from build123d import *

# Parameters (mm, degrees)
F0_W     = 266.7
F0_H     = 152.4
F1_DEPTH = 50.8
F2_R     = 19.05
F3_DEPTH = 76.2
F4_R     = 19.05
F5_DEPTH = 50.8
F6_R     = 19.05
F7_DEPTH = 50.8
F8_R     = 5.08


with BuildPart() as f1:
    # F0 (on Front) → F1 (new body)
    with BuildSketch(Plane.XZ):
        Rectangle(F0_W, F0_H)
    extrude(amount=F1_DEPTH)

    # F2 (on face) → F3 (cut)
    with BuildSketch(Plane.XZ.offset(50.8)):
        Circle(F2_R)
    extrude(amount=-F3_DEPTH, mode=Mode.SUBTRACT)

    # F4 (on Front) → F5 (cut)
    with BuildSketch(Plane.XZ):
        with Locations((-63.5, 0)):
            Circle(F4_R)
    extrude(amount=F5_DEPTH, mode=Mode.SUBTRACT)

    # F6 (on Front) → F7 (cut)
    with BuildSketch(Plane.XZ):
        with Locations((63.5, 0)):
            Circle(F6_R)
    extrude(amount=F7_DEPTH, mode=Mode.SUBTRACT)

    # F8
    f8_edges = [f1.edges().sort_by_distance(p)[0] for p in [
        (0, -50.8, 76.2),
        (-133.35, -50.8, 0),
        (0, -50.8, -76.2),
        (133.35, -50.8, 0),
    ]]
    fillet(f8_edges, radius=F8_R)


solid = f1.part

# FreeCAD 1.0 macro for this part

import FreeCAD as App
import Part
import Sketcher
Q = App.Units.Quantity


def edges_at(feature, points):
    """Names of the edges that pass closest to the given points."""
    edges = feature.Shape.Edges
    near = lambda p: min(range(len(edges)), key=lambda i: edges[i].distToShape(Part.Vertex(*p))[0])
    return sorted({f"Edge{near(p) + 1}" for p in points})


def add_polygon(sketch, points):
    """Adds a closed chain of lines whose ends are joined by coincident constraints."""
    first, n = sketch.GeometryCount, len(points)
    for a, b in zip(points, points[1:] + points[:1]):
        sketch.addGeometry(Part.LineSegment(App.Vector(*a, 0), App.Vector(*b, 0)), False)
    for i in range(n):
        sketch.addConstraint(Sketcher.Constraint("Coincident", first + i, 2, first + (i + 1) % n, 1))

doc = App.newDocument("Part")
body = doc.addObject("PartDesign::Body", "Body")

# Sketch on XZ plane
sketch1 = body.newObject("Sketcher::SketchObject", "Sketch")
sketch1.AttachmentSupport = (doc.getObject("XZ_Plane"), [""])
sketch1.MapMode = "FlatFace"
add_polygon(sketch1, [(-133, 76), (-133, -76), (133, -76), (133, 76)])  # lines 0-3
sketch1.addConstraint([
    Sketcher.Constraint("Vertical", 0),
    Sketcher.Constraint("Horizontal", 1),
    Sketcher.Constraint("Vertical", 2),
    Sketcher.Constraint("Horizontal", 3),
    Sketcher.Constraint("Symmetric", 0, 2, 2, 2, -1, 1),
    Sketcher.Constraint("DistanceY", 0, 2, 0, 1, Q("6 in")),
    Sketcher.Constraint("DistanceX", 1, 1, 1, 2, Q("10.5 in")),
])
pad1 = body.newObject("PartDesign::Pad", "Pad")
pad1.Profile = sketch1
pad1.Length = Q("2 in")

# Sketch on XZ plane
sketch2 = body.newObject("Sketcher::SketchObject", "Sketch001")
sketch2.AttachmentSupport = (doc.getObject("XZ_Plane"), [""])
sketch2.MapMode = "FlatFace"
sketch2.AttachmentOffset = App.Placement(App.Vector(0, 0, 2 * 25.4), App.Rotation())
sketch2.addGeometry(Part.Circle(App.Vector(0, 0, 0), App.Vector(0, 0, 1), 19), False)
sketch2.addConstraint([
    Sketcher.Constraint("Coincident", 0, 3, -1, 1),
    Sketcher.Constraint("Diameter", 0, Q("1.5 in")),
])
pocket1 = body.newObject("PartDesign::Pocket", "Pocket")
pocket1.Profile = sketch2
pocket1.Length = Q("3 in")

# Sketch on XZ plane
sketch3 = body.newObject("Sketcher::SketchObject", "Sketch002")
sketch3.AttachmentSupport = (doc.getObject("XZ_Plane"), [""])
sketch3.MapMode = "FlatFace"
sketch3.addGeometry(Part.Circle(App.Vector(-64, 0, 0), App.Vector(0, 0, 1), 19), False)
sketch3.addConstraint([
    Sketcher.Constraint("PointOnObject", 0, 3, -1),
    Sketcher.Constraint("Diameter", 0, Q("1.5 in")),
    Sketcher.Constraint("DistanceX", 0, 3, -1, 1, Q("2.5 in")),
])
pocket2 = body.newObject("PartDesign::Pocket", "Pocket001")
pocket2.Profile = sketch3
pocket2.Length = Q("2 in")
pocket2.Reversed = True

# Sketch on XZ plane
sketch4 = body.newObject("Sketcher::SketchObject", "Sketch003")
sketch4.AttachmentSupport = (doc.getObject("XZ_Plane"), [""])
sketch4.MapMode = "FlatFace"
sketch4.addGeometry(Part.Circle(App.Vector(64, 0, 0), App.Vector(0, 0, 1), 19), False)
sketch4.addConstraint([
    Sketcher.Constraint("PointOnObject", 0, 3, -1),
    Sketcher.Constraint("Diameter", 0, Q("1.5 in")),
    Sketcher.Constraint("DistanceX", -1, 1, 0, 3, Q("2.5 in")),
])
pocket3 = body.newObject("PartDesign::Pocket", "Pocket002")
pocket3.Profile = sketch4
pocket3.Length = Q("2 in")
pocket3.Reversed = True
doc.recompute()

fillet = body.newObject("PartDesign::Fillet", "Fillet")
fillet.Base = (pocket3, edges_at(pocket3, [
    (0, -50.8, 76.2),
    (-133.35, -50.8, 0),
    (0, -50.8, -76.2),
    (133.35, -50.8, 0),
]))
fillet.Radius = Q("0.2 in")

doc.recompute()
